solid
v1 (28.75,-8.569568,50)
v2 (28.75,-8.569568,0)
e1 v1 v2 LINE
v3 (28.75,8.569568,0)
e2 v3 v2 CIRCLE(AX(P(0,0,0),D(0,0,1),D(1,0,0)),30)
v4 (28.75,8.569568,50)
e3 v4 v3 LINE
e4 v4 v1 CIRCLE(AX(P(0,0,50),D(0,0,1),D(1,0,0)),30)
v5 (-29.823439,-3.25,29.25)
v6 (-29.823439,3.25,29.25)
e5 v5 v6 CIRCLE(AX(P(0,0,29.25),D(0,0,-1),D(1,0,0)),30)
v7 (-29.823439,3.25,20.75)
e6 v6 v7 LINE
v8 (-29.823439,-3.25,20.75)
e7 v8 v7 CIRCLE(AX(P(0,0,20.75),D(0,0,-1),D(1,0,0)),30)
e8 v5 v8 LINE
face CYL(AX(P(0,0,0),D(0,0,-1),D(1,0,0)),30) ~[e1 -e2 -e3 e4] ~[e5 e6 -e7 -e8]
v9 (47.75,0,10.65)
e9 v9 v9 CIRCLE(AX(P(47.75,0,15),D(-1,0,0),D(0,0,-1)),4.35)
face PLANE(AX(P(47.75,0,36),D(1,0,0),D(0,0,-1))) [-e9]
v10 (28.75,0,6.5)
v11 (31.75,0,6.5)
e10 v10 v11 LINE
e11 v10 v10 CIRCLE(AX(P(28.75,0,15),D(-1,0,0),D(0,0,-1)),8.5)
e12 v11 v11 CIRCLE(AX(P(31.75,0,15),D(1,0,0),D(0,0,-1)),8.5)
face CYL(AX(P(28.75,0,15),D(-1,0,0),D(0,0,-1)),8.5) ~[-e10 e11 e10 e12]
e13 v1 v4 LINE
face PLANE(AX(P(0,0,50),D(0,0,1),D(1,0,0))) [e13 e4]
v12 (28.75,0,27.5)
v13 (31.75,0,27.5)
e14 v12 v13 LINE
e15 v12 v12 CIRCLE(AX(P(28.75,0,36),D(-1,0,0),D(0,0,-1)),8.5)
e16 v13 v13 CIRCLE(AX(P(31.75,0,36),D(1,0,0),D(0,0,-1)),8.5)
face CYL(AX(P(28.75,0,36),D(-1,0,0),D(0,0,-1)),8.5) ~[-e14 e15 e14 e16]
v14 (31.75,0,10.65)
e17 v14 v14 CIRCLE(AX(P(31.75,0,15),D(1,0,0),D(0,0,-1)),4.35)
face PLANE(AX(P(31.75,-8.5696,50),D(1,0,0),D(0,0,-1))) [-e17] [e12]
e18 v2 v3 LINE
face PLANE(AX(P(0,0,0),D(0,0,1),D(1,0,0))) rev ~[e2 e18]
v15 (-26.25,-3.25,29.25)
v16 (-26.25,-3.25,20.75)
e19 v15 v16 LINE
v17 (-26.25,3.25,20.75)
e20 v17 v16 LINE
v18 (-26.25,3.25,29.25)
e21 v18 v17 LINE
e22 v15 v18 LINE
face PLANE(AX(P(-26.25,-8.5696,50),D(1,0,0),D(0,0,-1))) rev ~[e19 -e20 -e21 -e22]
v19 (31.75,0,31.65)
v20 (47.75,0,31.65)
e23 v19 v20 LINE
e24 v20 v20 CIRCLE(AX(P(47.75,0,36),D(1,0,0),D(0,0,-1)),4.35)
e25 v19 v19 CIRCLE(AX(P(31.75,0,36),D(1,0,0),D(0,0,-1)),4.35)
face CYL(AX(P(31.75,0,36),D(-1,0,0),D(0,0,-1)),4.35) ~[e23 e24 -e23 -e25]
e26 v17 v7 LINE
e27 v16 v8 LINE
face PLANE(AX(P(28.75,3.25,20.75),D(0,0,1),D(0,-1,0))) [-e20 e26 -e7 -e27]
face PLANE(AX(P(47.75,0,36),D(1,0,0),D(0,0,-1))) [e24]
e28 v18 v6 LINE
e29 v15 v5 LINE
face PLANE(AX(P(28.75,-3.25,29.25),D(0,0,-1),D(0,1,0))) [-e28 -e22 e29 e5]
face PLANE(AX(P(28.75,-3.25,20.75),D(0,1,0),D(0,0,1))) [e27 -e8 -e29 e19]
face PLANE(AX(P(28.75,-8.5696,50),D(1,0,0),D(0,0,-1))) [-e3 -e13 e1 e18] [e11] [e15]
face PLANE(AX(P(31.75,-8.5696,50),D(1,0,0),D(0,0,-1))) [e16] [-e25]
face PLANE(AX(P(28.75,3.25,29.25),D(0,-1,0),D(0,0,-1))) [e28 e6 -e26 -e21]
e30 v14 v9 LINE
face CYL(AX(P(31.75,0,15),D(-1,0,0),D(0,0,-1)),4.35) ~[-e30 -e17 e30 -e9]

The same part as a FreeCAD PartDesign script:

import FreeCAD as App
import Part
import Sketcher
from FreeCAD import Vector
Q = App.Units.Quantity


def add_polygon(sketch, points):
    """Adds a closed chain of lines whose ends are joined by coincident constraints."""
    first, n = sketch.GeometryCount, len(points)
    for a, b in zip(points, points[1:] + points[:1]):
        sketch.addGeometry(Part.LineSegment(App.Vector(*a, 0), App.Vector(*b, 0)), False)
    for i in range(n):
        sketch.addConstraint(Sketcher.Constraint("Coincident", first + i, 2, first + (i + 1) % n, 1))

doc = App.newDocument("Part")
body = doc.addObject("PartDesign::Body", "Body")

# Sketch on XY plane
sketch1 = doc.addObject("Sketcher::SketchObject", "Sketch")
body.addObject(sketch1)
sketch1.AttachmentSupport = (doc.XY_Plane, [""])
sketch1.MapMode = "FlatFace"
sketch1.addGeometry(Part.Circle(Vector(0, 0, 0), Vector(0, 0, 1), 30), False)
sketch1.addConstraint([
    Sketcher.Constraint("Coincident", 0, 3, -1, 1),
    Sketcher.Constraint("Diameter", 0, Q("60 mm")),
])
pad1 = doc.addObject("PartDesign::Pad", "Pad")
body.addObject(pad1)
pad1.Profile = sketch1
pad1.Length = 50

# Sketch on XY plane
sketch2 = doc.addObject("Sketcher::SketchObject", "Sketch001")
body.addObject(sketch2)
sketch2.AttachmentSupport = (doc.XY_Plane, [""])
sketch2.MapMode = "FlatFace"
sketch2.AttachmentOffset = App.Placement(Vector(0, 0, 50), App.Rotation())
add_polygon(sketch2, [(35, 17), (29, 17), (29, -18), (35, -18)])  # lines 0-3
sketch2.addConstraint([
    Sketcher.Constraint("Horizontal", 0),
    Sketcher.Constraint("Vertical", 1),
    Sketcher.Constraint("Horizontal", 2),
    Sketcher.Constraint("Vertical", 3),
    Sketcher.Constraint("DistanceY", 1, 2, 1, 1, Q("34.769 mm")),
    Sketcher.Constraint("DistanceX", -1, 1, 0, 2, Q("28.75 mm")),
    Sketcher.Constraint("DistanceY", -1, 1, 0, 2, Q("16.52 mm")),
    Sketcher.Constraint("DistanceX", 0, 2, 0, 1, Q("6.2112 mm")),
])
pocket1 = doc.addObject("PartDesign::Pocket", "Pocket")
body.addObject(pocket1)
pocket1.Profile = sketch2
pocket1.Type = "ThroughAll"

# Sketch on YZ plane
sketch3 = doc.addObject("Sketcher::SketchObject", "Sketch002")
body.addObject(sketch3)
sketch3.AttachmentSupport = (doc.YZ_Plane, [""])
sketch3.MapMode = "FlatFace"
sketch3.AttachmentOffset = App.Placement(Vector(0, 0, 28.75), App.Rotation())
sketch3.addGeometry(Part.Circle(Vector(0, 36, 0), Vector(0, 0, 1), 8), False)
sketch3.addConstraint([
    Sketcher.Constraint("PointOnObject", 0, 3, -2),
    Sketcher.Constraint("Diameter", 0, Q("17 mm")),
    Sketcher.Constraint("DistanceY", -1, 1, 0, 3, Q("36 mm")),
])
pad2 = doc.addObject("PartDesign::Pad", "Pad001")
body.addObject(pad2)
pad2.Profile = sketch3
pad2.Length = 3

# Sketch on YZ plane
sketch4 = doc.addObject("Sketcher::SketchObject", "Sketch003")
body.addObject(sketch4)
sketch4.AttachmentSupport = (doc.YZ_Plane, [""])
sketch4.MapMode = "FlatFace"
sketch4.AttachmentOffset = App.Placement(Vector(0, 0, 28.75), App.Rotation())
sketch4.addGeometry(Part.Circle(Vector(0, 15, 0), Vector(0, 0, 1), 8), False)
sketch4.addConstraint([
    Sketcher.Constraint("PointOnObject", 0, 3, -2),
    Sketcher.Constraint("Diameter", 0, Q("17 mm")),
    Sketcher.Constraint("DistanceY", -1, 1, 0, 3, Q("15 mm")),
])
pad3 = doc.addObject("PartDesign::Pad", "Pad002")
body.addObject(pad3)
pad3.Profile = sketch4
pad3.Length = 3

# Sketch on YZ plane
sketch5 = doc.addObject("Sketcher::SketchObject", "Sketch004")
body.addObject(sketch5)
sketch5.AttachmentSupport = (doc.YZ_Plane, [""])
sketch5.MapMode = "FlatFace"
sketch5.AttachmentOffset = App.Placement(Vector(0, 0, 31.75), App.Rotation())
sketch5.addGeometry([
    Part.Circle(Vector(0, 36, 0), Vector(0, 0, 1), 4.3),
    Part.Circle(Vector(0, 15, 0), Vector(0, 0, 1), 4.3),
], False)
sketch5.addConstraint([
    Sketcher.Constraint("Equal", 0, 1),
    Sketcher.Constraint("PointOnObject", 0, 3, -2),
    Sketcher.Constraint("PointOnObject", 1, 3, -2),
    Sketcher.Constraint("Diameter", 0, Q("8.7 mm")),
    Sketcher.Constraint("DistanceY", -1, 1, 0, 3, Q("36 mm")),
    Sketcher.Constraint("DistanceY", -1, 1, 1, 3, Q("15 mm")),
])
pad4 = doc.addObject("PartDesign::Pad", "Pad003")
body.addObject(pad4)
pad4.Profile = sketch5
pad4.Length = 16

# Sketch on YZ plane
sketch6 = doc.addObject("Sketcher::SketchObject", "Sketch005")
body.addObject(sketch6)
sketch6.AttachmentSupport = (doc.YZ_Plane, [""])
sketch6.MapMode = "FlatFace"
sketch6.AttachmentOffset = App.Placement(Vector(0, 0, 28.75), App.Rotation())
add_polygon(sketch6, [(-3, 29), (-3, 21), (3, 21), (3, 29)])  # lines 0-3
sketch6.addConstraint([
    Sketcher.Constraint("Vertical", 0),
    Sketcher.Constraint("Horizontal", 1),
    Sketcher.Constraint("Vertical", 2),
    Sketcher.Constraint("Horizontal", 3),
    Sketcher.Constraint("DistanceX", 1, 1, 1, 2, Q("6.5 mm")),
    Sketcher.Constraint("DistanceY", 0, 2, 0, 1, Q("8.5 mm")),
    Sketcher.Constraint("DistanceX", 0, 2, -1, 1, Q("3.25 mm")),
    Sketcher.Constraint("DistanceY", -1, 1, 0, 2, Q("20.75 mm")),
])
pocket2 = doc.addObject("PartDesign::Pocket", "Pocket001")
body.addObject(pocket2)
pocket2.Profile = sketch6
pocket2.Type = "ThroughAll"

# Sketch on YZ plane
sketch7 = doc.addObject("Sketcher::SketchObject", "Sketch006")
body.addObject(sketch7)
sketch7.AttachmentSupport = (doc.YZ_Plane, [""])
sketch7.MapMode = "FlatFace"
sketch7.AttachmentOffset = App.Placement(Vector(0, 0, 28.75), App.Rotation())
add_polygon(sketch7, [(-3, 29), (-3, 21), (3, 21), (3, 29)])  # lines 0-3
sketch7.addConstraint([
    Sketcher.Constraint("Vertical", 0),
    Sketcher.Constraint("Horizontal", 1),
    Sketcher.Constraint("Vertical", 2),
    Sketcher.Constraint("Horizontal", 3),
    Sketcher.Constraint("DistanceX", 1, 1, 1, 2, Q("6.5 mm")),
    Sketcher.Constraint("DistanceY", 0, 2, 0, 1, Q("8.5 mm")),
    Sketcher.Constraint("DistanceX", 0, 2, -1, 1, Q("3.25 mm")),
    Sketcher.Constraint("DistanceY", -1, 1, 0, 2, Q("20.75 mm")),
])
pad5 = doc.addObject("PartDesign::Pad", "Pad004")
body.addObject(pad5)
pad5.Profile = sketch7
pad5.Length = 55
pad5.Reversed = True

doc.recompute()
